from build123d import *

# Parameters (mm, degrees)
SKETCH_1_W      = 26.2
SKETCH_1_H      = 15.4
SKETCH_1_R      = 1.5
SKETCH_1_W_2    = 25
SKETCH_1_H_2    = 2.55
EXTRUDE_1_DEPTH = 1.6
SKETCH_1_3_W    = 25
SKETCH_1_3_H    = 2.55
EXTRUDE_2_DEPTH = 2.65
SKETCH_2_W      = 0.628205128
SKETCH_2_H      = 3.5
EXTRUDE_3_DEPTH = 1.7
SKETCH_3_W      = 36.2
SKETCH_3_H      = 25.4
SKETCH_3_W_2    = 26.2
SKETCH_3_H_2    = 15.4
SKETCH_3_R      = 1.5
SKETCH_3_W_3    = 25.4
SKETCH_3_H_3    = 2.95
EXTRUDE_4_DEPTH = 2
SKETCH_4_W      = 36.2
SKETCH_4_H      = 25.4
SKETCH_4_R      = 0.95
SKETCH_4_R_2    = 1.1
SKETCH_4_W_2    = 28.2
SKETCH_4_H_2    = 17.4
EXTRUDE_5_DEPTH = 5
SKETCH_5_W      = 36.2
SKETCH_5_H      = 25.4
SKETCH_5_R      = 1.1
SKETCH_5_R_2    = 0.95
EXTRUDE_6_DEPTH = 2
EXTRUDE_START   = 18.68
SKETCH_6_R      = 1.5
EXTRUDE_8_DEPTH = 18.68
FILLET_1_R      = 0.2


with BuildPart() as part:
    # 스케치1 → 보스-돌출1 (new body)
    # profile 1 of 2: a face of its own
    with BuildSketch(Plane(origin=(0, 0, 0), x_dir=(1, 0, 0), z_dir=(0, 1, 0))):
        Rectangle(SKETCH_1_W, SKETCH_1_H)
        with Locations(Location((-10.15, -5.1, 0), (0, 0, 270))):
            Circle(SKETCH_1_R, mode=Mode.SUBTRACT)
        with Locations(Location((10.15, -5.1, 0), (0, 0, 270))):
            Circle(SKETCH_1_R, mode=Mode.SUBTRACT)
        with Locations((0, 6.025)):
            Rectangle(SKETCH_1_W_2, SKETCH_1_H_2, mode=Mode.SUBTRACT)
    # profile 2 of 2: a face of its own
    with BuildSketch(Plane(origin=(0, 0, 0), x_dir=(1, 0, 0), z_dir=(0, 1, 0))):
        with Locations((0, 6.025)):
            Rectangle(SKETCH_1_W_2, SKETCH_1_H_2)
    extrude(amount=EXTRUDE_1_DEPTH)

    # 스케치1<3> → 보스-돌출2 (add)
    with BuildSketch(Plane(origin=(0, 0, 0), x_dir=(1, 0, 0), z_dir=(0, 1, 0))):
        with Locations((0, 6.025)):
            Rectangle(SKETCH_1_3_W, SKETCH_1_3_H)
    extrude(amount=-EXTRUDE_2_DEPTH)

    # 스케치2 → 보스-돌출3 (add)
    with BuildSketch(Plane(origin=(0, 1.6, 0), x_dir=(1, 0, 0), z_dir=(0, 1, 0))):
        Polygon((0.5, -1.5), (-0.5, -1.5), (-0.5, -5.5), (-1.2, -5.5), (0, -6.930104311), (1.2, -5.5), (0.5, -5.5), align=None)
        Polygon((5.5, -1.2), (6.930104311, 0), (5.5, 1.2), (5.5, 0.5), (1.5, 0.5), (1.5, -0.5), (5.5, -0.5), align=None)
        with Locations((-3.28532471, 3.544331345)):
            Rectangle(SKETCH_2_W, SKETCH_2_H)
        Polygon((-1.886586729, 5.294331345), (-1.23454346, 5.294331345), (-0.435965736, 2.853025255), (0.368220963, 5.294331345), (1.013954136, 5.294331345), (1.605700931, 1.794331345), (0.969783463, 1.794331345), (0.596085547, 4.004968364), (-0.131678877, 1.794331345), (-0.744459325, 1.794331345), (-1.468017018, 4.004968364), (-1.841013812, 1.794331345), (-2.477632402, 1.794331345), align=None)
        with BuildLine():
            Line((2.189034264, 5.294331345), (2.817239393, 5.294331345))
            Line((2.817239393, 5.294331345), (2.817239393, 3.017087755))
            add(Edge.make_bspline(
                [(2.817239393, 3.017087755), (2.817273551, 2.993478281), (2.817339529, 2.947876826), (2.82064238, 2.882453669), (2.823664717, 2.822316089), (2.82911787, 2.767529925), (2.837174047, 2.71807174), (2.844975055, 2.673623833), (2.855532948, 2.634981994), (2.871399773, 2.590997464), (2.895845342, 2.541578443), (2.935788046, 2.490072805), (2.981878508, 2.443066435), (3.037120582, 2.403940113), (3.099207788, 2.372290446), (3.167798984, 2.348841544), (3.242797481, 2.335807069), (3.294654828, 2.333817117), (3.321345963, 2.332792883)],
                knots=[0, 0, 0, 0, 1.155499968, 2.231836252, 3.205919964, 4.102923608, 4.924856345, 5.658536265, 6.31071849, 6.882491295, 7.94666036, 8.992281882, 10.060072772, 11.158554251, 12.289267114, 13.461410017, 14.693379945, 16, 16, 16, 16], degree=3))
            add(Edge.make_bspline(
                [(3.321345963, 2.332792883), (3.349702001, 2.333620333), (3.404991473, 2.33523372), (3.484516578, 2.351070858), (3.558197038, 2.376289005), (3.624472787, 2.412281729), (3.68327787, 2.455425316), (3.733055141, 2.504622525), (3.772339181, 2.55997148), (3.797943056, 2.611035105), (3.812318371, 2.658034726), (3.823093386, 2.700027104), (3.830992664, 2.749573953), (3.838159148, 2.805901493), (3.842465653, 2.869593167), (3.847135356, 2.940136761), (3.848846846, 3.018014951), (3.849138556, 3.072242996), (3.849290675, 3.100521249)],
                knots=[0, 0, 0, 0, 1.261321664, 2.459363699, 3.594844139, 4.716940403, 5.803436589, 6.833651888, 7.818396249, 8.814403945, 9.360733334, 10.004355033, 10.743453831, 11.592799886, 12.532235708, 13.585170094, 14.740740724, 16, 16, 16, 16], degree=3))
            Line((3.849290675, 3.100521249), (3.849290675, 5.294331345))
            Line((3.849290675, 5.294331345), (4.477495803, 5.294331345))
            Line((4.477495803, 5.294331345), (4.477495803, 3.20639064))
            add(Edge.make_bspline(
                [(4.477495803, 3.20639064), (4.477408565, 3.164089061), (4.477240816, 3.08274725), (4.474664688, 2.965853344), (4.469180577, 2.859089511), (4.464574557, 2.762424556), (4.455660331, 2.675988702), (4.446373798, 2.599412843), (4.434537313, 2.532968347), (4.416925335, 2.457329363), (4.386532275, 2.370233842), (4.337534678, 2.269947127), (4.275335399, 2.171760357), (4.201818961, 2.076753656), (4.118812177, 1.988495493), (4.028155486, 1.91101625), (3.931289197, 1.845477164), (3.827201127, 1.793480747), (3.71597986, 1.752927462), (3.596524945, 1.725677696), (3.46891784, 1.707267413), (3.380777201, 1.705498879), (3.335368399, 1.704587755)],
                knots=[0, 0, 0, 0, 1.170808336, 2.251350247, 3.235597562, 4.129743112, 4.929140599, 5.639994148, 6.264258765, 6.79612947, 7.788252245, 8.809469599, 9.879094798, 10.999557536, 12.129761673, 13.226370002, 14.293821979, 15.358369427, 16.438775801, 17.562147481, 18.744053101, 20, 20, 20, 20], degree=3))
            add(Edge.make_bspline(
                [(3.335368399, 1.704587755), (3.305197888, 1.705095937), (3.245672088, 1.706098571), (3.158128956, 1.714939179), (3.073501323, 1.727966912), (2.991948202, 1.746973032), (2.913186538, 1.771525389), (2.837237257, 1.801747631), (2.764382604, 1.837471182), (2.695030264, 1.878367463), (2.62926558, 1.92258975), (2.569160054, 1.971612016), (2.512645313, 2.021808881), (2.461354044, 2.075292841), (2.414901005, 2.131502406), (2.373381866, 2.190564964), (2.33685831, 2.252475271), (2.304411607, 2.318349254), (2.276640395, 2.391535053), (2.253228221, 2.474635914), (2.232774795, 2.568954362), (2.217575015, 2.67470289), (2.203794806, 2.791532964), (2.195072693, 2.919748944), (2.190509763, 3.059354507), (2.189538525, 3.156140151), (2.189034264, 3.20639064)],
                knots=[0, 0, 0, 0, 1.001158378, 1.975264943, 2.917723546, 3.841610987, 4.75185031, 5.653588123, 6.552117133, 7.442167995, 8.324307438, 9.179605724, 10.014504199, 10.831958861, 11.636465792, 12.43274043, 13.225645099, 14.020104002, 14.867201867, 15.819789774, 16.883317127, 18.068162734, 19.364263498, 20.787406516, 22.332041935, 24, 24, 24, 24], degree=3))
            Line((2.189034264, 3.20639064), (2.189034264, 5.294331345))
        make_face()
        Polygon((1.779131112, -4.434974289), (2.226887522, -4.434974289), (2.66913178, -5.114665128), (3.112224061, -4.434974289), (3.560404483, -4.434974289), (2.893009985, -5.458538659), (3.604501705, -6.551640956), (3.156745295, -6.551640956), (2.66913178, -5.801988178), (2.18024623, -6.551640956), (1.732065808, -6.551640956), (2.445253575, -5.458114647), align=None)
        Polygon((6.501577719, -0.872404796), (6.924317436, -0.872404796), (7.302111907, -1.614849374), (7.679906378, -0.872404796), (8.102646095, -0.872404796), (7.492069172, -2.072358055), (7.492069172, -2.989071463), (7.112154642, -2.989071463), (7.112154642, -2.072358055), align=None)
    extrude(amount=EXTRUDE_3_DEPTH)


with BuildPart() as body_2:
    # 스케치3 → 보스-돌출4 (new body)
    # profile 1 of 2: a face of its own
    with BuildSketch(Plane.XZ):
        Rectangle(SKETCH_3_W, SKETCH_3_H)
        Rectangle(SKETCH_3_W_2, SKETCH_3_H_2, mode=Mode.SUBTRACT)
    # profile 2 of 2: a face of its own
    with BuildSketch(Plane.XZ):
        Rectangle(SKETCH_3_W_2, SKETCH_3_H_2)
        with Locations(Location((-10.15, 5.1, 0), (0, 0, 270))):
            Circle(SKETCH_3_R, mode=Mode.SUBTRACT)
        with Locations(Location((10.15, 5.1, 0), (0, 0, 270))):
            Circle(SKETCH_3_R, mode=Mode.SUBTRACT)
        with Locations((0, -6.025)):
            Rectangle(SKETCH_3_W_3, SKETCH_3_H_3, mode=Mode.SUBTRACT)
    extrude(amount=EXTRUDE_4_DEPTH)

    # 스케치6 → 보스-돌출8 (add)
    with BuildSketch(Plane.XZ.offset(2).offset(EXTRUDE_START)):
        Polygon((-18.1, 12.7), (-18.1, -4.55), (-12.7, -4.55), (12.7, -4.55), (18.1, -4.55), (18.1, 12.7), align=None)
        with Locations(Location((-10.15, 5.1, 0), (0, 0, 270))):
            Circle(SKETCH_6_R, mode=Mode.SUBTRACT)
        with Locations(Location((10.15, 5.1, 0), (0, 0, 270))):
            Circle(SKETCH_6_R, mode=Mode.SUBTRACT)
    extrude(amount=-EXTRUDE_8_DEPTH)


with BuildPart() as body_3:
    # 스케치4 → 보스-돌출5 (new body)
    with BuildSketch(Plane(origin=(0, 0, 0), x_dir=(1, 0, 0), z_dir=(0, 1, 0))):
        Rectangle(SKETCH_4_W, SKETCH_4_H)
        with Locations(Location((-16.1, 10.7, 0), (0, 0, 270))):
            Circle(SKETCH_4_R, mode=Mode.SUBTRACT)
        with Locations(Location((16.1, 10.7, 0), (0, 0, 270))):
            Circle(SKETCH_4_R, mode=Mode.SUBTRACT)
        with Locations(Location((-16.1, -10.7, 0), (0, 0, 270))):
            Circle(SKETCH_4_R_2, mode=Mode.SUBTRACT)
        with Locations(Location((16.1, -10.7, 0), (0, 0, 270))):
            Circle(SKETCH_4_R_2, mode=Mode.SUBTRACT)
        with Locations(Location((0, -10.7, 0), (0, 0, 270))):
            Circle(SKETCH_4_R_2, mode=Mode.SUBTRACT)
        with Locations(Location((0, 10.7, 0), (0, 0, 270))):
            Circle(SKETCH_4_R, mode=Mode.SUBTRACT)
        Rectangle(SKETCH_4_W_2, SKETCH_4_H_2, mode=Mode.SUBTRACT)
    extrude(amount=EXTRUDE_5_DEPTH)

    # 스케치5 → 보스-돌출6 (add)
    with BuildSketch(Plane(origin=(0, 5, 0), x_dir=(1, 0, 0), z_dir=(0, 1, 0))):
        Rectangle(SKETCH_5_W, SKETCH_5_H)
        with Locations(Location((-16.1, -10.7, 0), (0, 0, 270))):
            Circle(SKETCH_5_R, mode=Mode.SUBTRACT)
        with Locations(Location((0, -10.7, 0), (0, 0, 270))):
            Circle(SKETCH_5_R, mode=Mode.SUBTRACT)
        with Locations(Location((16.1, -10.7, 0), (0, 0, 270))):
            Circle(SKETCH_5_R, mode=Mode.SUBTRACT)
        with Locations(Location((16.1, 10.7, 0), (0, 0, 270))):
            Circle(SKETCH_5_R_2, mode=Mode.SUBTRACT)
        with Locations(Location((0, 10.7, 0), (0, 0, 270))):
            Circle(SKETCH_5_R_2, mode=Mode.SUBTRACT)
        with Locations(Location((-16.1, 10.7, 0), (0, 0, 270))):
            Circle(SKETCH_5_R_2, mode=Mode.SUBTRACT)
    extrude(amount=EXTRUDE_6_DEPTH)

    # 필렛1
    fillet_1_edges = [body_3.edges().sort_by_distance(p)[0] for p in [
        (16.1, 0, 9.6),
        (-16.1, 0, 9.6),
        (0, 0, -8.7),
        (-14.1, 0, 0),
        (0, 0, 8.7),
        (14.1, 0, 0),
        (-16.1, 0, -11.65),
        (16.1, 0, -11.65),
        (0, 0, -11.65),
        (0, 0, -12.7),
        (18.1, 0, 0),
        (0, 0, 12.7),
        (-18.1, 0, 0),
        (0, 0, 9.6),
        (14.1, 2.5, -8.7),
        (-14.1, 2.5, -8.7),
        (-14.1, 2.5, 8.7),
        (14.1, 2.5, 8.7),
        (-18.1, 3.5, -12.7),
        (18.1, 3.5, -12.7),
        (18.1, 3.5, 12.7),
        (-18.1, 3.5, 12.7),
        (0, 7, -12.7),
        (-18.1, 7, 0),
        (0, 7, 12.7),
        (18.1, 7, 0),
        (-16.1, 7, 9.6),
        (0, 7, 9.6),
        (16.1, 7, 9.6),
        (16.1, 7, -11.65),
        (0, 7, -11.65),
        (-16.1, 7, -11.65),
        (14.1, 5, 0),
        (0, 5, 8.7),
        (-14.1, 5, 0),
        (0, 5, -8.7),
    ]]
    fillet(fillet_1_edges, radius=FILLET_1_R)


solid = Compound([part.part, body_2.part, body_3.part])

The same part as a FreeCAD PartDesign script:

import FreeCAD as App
import Part
import Sketcher
from FreeCAD import Vector
Q = App.Units.Quantity

doc = App.newDocument("Part")
body = doc.addObject("PartDesign::Body", "Body")

sketch1 = body.newObject("Sketcher::SketchObject", "Sketch")
sketch1.AttachmentSupport = (doc.getObject("XZ_Plane"), [""])
sketch1.MapMode = "FlatFace"
sketch1.addGeometry([
    Part.LineSegment(Vector(-13.1, -7.7, 0), Vector(-13.1, 7.7, 0)),
    Part.LineSegment(Vector(-13.1, 7.7, 0), Vector(13.1, 7.7, 0)),
    Part.LineSegment(Vector(13.1, 7.7, 0), Vector(13.1, -7.7, 0)),
    Part.LineSegment(Vector(13.1, -7.7, 0), Vector(-13.1, -7.7, 0)),
    Part.Circle(Vector(-10.15, 5.1, 0), Vector(0, 0, 1), 1.5),
    Part.Circle(Vector(10.15, 5.1, 0), Vector(0, 0, 1), 1.5),
], False)
sketch1.addConstraint([
    Sketcher.Constraint("Coincident", 0, 2, 1, 1),
    Sketcher.Constraint("Coincident", 1, 2, 2, 1),
    Sketcher.Constraint("Coincident", 2, 2, 3, 1),
    Sketcher.Constraint("Coincident", 3, 2, 0, 1),
    Sketcher.Constraint("Vertical", 0),
    Sketcher.Constraint("Horizontal", 1),
    Sketcher.Constraint("Vertical", 2),
    Sketcher.Constraint("Horizontal", 3),
    Sketcher.Constraint("Equal", 4, 5),
    Sketcher.Constraint("Symmetric", 0, 2, 2, 2, -1, 1),
    Sketcher.Constraint("Symmetric", 4, 3, 5, 3, -2),
    Sketcher.Constraint("Diameter", 4, Q("3 mm")),
    Sketcher.Constraint("DistanceX", 1, 1, 1, 2, Q("26.2 mm")),
    Sketcher.Constraint("DistanceY", 0, 1, 0, 2, Q("15.4 mm")),
    Sketcher.Constraint("DistanceY", -1, 1, 4, 3, Q("5.1 mm")),
    Sketcher.Constraint("DistanceX", 4, 3, 5, 3, Q("20.3 mm")),
])
pad1 = body.newObject("PartDesign::Pad", "Pad")
pad1.Profile = sketch1
pad1.Length = 1.6
pad1.Reversed = True

sketch2 = body.newObject("Sketcher::SketchObject", "Sketch001")
sketch2.AttachmentSupport = (doc.getObject("XZ_Plane"), [""])
sketch2.MapMode = "FlatFace"
sketch2.addGeometry([
    Part.LineSegment(Vector(-12.5, -7.3, 0), Vector(-12.5, -4.75, 0)),
    Part.LineSegment(Vector(-12.5, -4.75, 0), Vector(12.5, -4.75, 0)),
    Part.LineSegment(Vector(12.5, -4.75, 0), Vector(12.5, -7.3, 0)),
    Part.LineSegment(Vector(12.5, -7.3, 0), Vector(-12.5, -7.3, 0)),
], False)
sketch2.addConstraint([
    Sketcher.Constraint("Coincident", 0, 2, 1, 1),
    Sketcher.Constraint("Coincident", 1, 2, 2, 1),
    Sketcher.Constraint("Coincident", 2, 2, 3, 1),
    Sketcher.Constraint("Coincident", 3, 2, 0, 1),
    Sketcher.Constraint("Vertical", 0),
    Sketcher.Constraint("Horizontal", 1),
    Sketcher.Constraint("Vertical", 2),
    Sketcher.Constraint("Horizontal", 3),
    Sketcher.Constraint("DistanceX", 1, 1, 1, 2, Q("25 mm")),
    Sketcher.Constraint("DistanceY", 0, 1, 0, 2, Q("2.55 mm")),
    Sketcher.Constraint("DistanceX", 0, 2, -1, 1, Q("12.5 mm")),
    Sketcher.Constraint("DistanceY", 2, 2, -1, 1, Q("7.3 mm")),
])
pad2 = body.newObject("PartDesign::Pad", "Pad001")
pad2.Profile = sketch2
pad2.Length = 2.65

sketch3 = body.newObject("Sketcher::SketchObject", "Sketch002")
sketch3.AttachmentSupport = (doc.getObject("XZ_Plane"), [""])
sketch3.MapMode = "FlatFace"
sketch3.AttachmentOffset = App.Placement(Vector(0, 0, -1.6), App.Rotation())
sketch3.addGeometry([
    Part.LineSegment(Vector(0.5, 1.5, 0), Vector(-0.5, 1.5, 0)),
    Part.LineSegment(Vector(-0.5, 1.5, 0), Vector(-0.5, 5.5, 0)),
    Part.LineSegment(Vector(-0.5, 5.5, 0), Vector(-1.2, 5.5, 0)),
    Part.LineSegment(Vector(-1.2, 5.5, 0), Vector(0, 6.930104, 0)),
    Part.LineSegment(Vector(0, 6.930104, 0), Vector(1.2, 5.5, 0)),
    Part.LineSegment(Vector(1.2, 5.5, 0), Vector(0.5, 5.5, 0)),
    Part.LineSegment(Vector(0.5, 5.5, 0), Vector(0.5, 1.5, 0)),
    Part.LineSegment(Vector(5.5, 1.2, 0), Vector(6.930104, 0, 0)),
    Part.LineSegment(Vector(6.930104, 0, 0), Vector(5.5, -1.2, 0)),
    Part.LineSegment(Vector(5.5, -1.2, 0), Vector(5.5, -0.5, 0)),
    Part.LineSegment(Vector(5.5, -0.5, 0), Vector(1.5, -0.5, 0)),
    Part.LineSegment(Vector(1.5, -0.5, 0), Vector(1.5, 0.5, 0)),
    Part.LineSegment(Vector(1.5, 0.5, 0), Vector(5.5, 0.5, 0)),
    Part.LineSegment(Vector(5.5, 0.5, 0), Vector(5.5, 1.2, 0)),
    Part.LineSegment(Vector(-3.599427, -5.294331, 0), Vector(-3.599427, -1.794331, 0)),
    Part.LineSegment(Vector(-3.599427, -1.794331, 0), Vector(-2.971222, -1.794331, 0)),
    Part.LineSegment(Vector(-2.971222, -1.794331, 0), Vector(-2.971222, -5.294331, 0)),
    Part.LineSegment(Vector(-2.971222, -5.294331, 0), Vector(-3.599427, -5.294331, 0)),
    Part.LineSegment(Vector(-1.234543, -5.294331, 0), Vector(-1.886587, -5.294331, 0)),
    Part.LineSegment(Vector(-1.886587, -5.294331, 0), Vector(-2.477632, -1.794331, 0)),
    Part.LineSegment(Vector(-2.477632, -1.794331, 0), Vector(-1.841014, -1.794331, 0)),
    Part.LineSegment(Vector(-1.841014, -1.794331, 0), Vector(-1.468017, -4.004968, 0)),
    Part.LineSegment(Vector(-1.468017, -4.004968, 0), Vector(-0.744459, -1.794331, 0)),
    Part.LineSegment(Vector(-0.744459, -1.794331, 0), Vector(-0.131679, -1.794331, 0)),
    Part.LineSegment(Vector(-0.131679, -1.794331, 0), Vector(0.596086, -4.004968, 0)),
    Part.LineSegment(Vector(0.596086, -4.004968, 0), Vector(0.969783, -1.794331, 0)),
    Part.LineSegment(Vector(0.969783, -1.794331, 0), Vector(1.605701, -1.794331, 0)),
    Part.LineSegment(Vector(1.605701, -1.794331, 0), Vector(1.013954, -5.294331, 0)),
    Part.LineSegment(Vector(1.013954, -5.294331, 0), Vector(0.368221, -5.294331, 0)),
    Part.LineSegment(Vector(0.368221, -5.294331, 0), Vector(-0.435966, -2.853025, 0)),
    Part.LineSegment(Vector(-0.435966, -2.853025, 0), Vector(-1.234543, -5.294331, 0)),
    Part.LineSegment(Vector(2.817239, -5.294331, 0), Vector(2.189034, -5.294331, 0)),
    Part.LineSegment(Vector(2.189034, -5.294331, 0), Vector(2.189034, -3.206391, 0)),
    Part.BSplineCurve([Vector(3.335368, -1.704588, 0), Vector(3.305198, -1.705096, 0), Vector(3.245672, -1.706099, 0), Vector(3.158129, -1.714939, 0), Vector(3.073501, -1.727967, 0), Vector(2.991948, -1.746973, 0), Vector(2.913187, -1.771525, 0), Vector(2.837237, -1.801748, 0), Vector(2.764383, -1.837471, 0), Vector(2.69503, -1.878367, 0), Vector(2.629266, -1.92259, 0), Vector(2.56916, -1.971612, 0), Vector(2.512645, -2.021809, 0), Vector(2.461354, -2.075293, 0), Vector(2.414901, -2.131502, 0), Vector(2.373382, -2.190565, 0), Vector(2.336858, -2.252475, 0), Vector(2.304412, -2.318349, 0), Vector(2.27664, -2.391535, 0), Vector(2.253228, -2.474636, 0), Vector(2.232775, -2.568954, 0), Vector(2.217575, -2.674703, 0), Vector(2.203795, -2.791533, 0), Vector(2.195073, -2.919749, 0), Vector(2.19051, -3.059355, 0), Vector(2.189539, -3.15614, 0), Vector(2.189034, -3.206391, 0)], [4, 1, 1, 1, 1, 1, 1, 1, 1, 1, 1, 1, 1, 1, 1, 1, 1, 1, 1, 1, 1, 1, 1, 1, 4], [0, 1.001158378, 1.975264943, 2.917723546, 3.841610987, 4.75185031, 5.653588123, 6.552117133, 7.442167995, 8.324307438, 9.179605724, 10.014504199, 10.831958861, 11.636465792, 12.43274043, 13.225645099, 14.020104002, 14.867201867, 15.819789774, 16.883317127, 18.068162734, 19.364263498, 20.787406516, 22.332041935, 24], False, 3, [1, 1, 1, 1, 1, 1, 1, 1, 1, 1, 1, 1, 1, 1, 1, 1, 1, 1, 1, 1, 1, 1, 1, 1, 1, 1, 1], False),
    Part.BSplineCurve([Vector(4.477496, -3.206391, 0), Vector(4.477409, -3.164089, 0), Vector(4.477241, -3.082747, 0), Vector(4.474665, -2.965853, 0), Vector(4.469181, -2.85909, 0), Vector(4.464575, -2.762425, 0), Vector(4.45566, -2.675989, 0), Vector(4.446374, -2.599413, 0), Vector(4.434537, -2.532968, 0), Vector(4.416925, -2.457329, 0), Vector(4.386532, -2.370234, 0), Vector(4.337535, -2.269947, 0), Vector(4.275335, -2.17176, 0), Vector(4.201819, -2.076754, 0), Vector(4.118812, -1.988495, 0), Vector(4.028155, -1.911016, 0), Vector(3.931289, -1.845477, 0), Vector(3.827201, -1.793481, 0), Vector(3.71598, -1.752927, 0), Vector(3.596525, -1.725678, 0), Vector(3.468918, -1.707267, 0), Vector(3.380777, -1.705499, 0), Vector(3.335368, -1.704588, 0)], [4, 1, 1, 1, 1, 1, 1, 1, 1, 1, 1, 1, 1, 1, 1, 1, 1, 1, 1, 1, 4], [0, 1.170808336, 2.251350247, 3.235597562, 4.129743112, 4.929140599, 5.639994148, 6.264258765, 6.79612947, 7.788252245, 8.809469599, 9.879094798, 10.999557536, 12.129761673, 13.226370002, 14.293821979, 15.358369427, 16.438775801, 17.562147481, 18.744053101, 20], False, 3, [1, 1, 1, 1, 1, 1, 1, 1, 1, 1, 1, 1, 1, 1, 1, 1, 1, 1, 1, 1, 1, 1, 1], False),
    Part.LineSegment(Vector(4.477496, -3.206391, 0), Vector(4.477496, -5.294331, 0)),
    Part.LineSegment(Vector(4.477496, -5.294331, 0), Vector(3.849291, -5.294331, 0)),
    Part.LineSegment(Vector(3.849291, -5.294331, 0), Vector(3.849291, -3.100521, 0)),
    Part.BSplineCurve([Vector(3.321346, -2.332793, 0), Vector(3.349702, -2.33362, 0), Vector(3.404991, -2.335234, 0), Vector(3.484517, -2.351071, 0), Vector(3.558197, -2.376289, 0), Vector(3.624473, -2.412282, 0), Vector(3.683278, -2.455425, 0), Vector(3.733055, -2.504623, 0), Vector(3.772339, -2.559971, 0), Vector(3.797943, -2.611035, 0), Vector(3.812318, -2.658035, 0), Vector(3.823093, -2.700027, 0), Vector(3.830993, -2.749574, 0), Vector(3.838159, -2.805901, 0), Vector(3.842466, -2.869593, 0), Vector(3.847135, -2.940137, 0), Vector(3.848847, -3.018015, 0), Vector(3.849139, -3.072243, 0), Vector(3.849291, -3.100521, 0)], [4, 1, 1, 1, 1, 1, 1, 1, 1, 1, 1, 1, 1, 1, 1, 1, 4], [0, 1.261321664, 2.459363699, 3.594844139, 4.716940403, 5.803436589, 6.833651888, 7.818396249, 8.814403945, 9.360733334, 10.004355033, 10.743453831, 11.592799886, 12.532235708, 13.585170094, 14.740740724, 16], False, 3, [1, 1, 1, 1, 1, 1, 1, 1, 1, 1, 1, 1, 1, 1, 1, 1, 1, 1, 1], False),
    Part.BSplineCurve([Vector(2.817239, -3.017088, 0), Vector(2.817274, -2.993478, 0), Vector(2.81734, -2.947877, 0), Vector(2.820642, -2.882454, 0), Vector(2.823665, -2.822316, 0), Vector(2.829118, -2.76753, 0), Vector(2.837174, -2.718072, 0), Vector(2.844975, -2.673624, 0), Vector(2.855533, -2.634982, 0), Vector(2.8714, -2.590997, 0), Vector(2.895845, -2.541578, 0), Vector(2.935788, -2.490073, 0), Vector(2.981879, -2.443066, 0), Vector(3.037121, -2.40394, 0), Vector(3.099208, -2.37229, 0), Vector(3.167799, -2.348842, 0), Vector(3.242797, -2.335807, 0), Vector(3.294655, -2.333817, 0), Vector(3.321346, -2.332793, 0)], [4, 1, 1, 1, 1, 1, 1, 1, 1, 1, 1, 1, 1, 1, 1, 1, 4], [0, 1.155499968, 2.231836252, 3.205919964, 4.102923608, 4.924856345, 5.658536265, 6.31071849, 6.882491295, 7.94666036, 8.992281882, 10.060072772, 11.158554251, 12.289267114, 13.461410017, 14.693379945, 16], False, 3, [1, 1, 1, 1, 1, 1, 1, 1, 1, 1, 1, 1, 1, 1, 1, 1, 1, 1, 1], False),
    Part.LineSegment(Vector(2.817239, -3.017088, 0), Vector(2.817239, -5.294331, 0)),
    Part.LineSegment(Vector(2.226888, 4.434974, 0), Vector(1.779131, 4.434974, 0)),
    Part.LineSegment(Vector(1.779131, 4.434974, 0), Vector(2.445254, 5.458115, 0)),
    Part.LineSegment(Vector(2.445254, 5.458115, 0), Vector(1.732066, 6.551641, 0)),
    Part.LineSegment(Vector(1.732066, 6.551641, 0), Vector(2.180246, 6.551641, 0)),
    Part.LineSegment(Vector(2.180246, 6.551641, 0), Vector(2.669132, 5.801988, 0)),
    Part.LineSegment(Vector(2.669132, 5.801988, 0), Vector(3.156745, 6.551641, 0)),
    Part.LineSegment(Vector(3.156745, 6.551641, 0), Vector(3.604502, 6.551641, 0)),
    Part.LineSegment(Vector(3.604502, 6.551641, 0), Vector(2.89301, 5.458539, 0)),
    Part.LineSegment(Vector(2.89301, 5.458539, 0), Vector(3.560404, 4.434974, 0)),
    Part.LineSegment(Vector(3.560404, 4.434974, 0), Vector(3.112224, 4.434974, 0)),
    Part.LineSegment(Vector(3.112224, 4.434974, 0), Vector(2.669132, 5.114665, 0)),
    Part.LineSegment(Vector(2.669132, 5.114665, 0), Vector(2.226888, 4.434974, 0)),
    Part.LineSegment(Vector(6.924317, 0.872405, 0), Vector(6.501578, 0.872405, 0)),
    Part.LineSegment(Vector(6.501578, 0.872405, 0), Vector(7.112155, 2.072358, 0)),
    Part.LineSegment(Vector(7.112155, 2.072358, 0), Vector(7.112155, 2.989071, 0)),
    Part.LineSegment(Vector(7.112155, 2.989071, 0), Vector(7.492069, 2.989071, 0)),
    Part.LineSegment(Vector(7.492069, 2.989071, 0), Vector(7.492069, 2.072358, 0)),
    Part.LineSegment(Vector(7.492069, 2.072358, 0), Vector(8.102646, 0.872405, 0)),
    Part.LineSegment(Vector(8.102646, 0.872405, 0), Vector(7.679906, 0.872405, 0)),
    Part.LineSegment(Vector(7.679906, 0.872405, 0), Vector(7.302112, 1.614849, 0)),
    Part.LineSegment(Vector(7.302112, 1.614849, 0), Vector(6.924317, 0.872405, 0)),
], False)
sketch3.addConstraint([
    Sketcher.Constraint("Block", 33),
    Sketcher.Constraint("Block", 34),
    Sketcher.Constraint("Block", 38),
    Sketcher.Constraint("Block", 39),
    Sketcher.Constraint("Coincident", 0, 2, 1, 1),
    Sketcher.Constraint("Coincident", 1, 2, 2, 1),
    Sketcher.Constraint("Coincident", 2, 2, 3, 1),
    Sketcher.Constraint("Coincident", 3, 2, 4, 1),
    Sketcher.Constraint("Coincident", 4, 2, 5, 1),
    Sketcher.Constraint("Coincident", 5, 2, 6, 1),
    Sketcher.Constraint("Coincident", 6, 2, 0, 1),
    Sketcher.Constraint("Coincident", 7, 2, 8, 1),
    Sketcher.Constraint("Coincident", 8, 2, 9, 1),
    Sketcher.Constraint("Coincident", 9, 2, 10, 1),
    Sketcher.Constraint("Coincident", 10, 2, 11, 1),
    Sketcher.Constraint("Coincident", 11, 2, 12, 1),
    Sketcher.Constraint("Coincident", 12, 2, 13, 1),
    Sketcher.Constraint("Coincident", 13, 2, 7, 1),
    Sketcher.Constraint("Coincident", 14, 2, 15, 1),
    Sketcher.Constraint("Coincident", 15, 2, 16, 1),
    Sketcher.Constraint("Coincident", 16, 2, 17, 1),
    Sketcher.Constraint("Coincident", 17, 2, 14, 1),
    Sketcher.Constraint("Coincident", 18, 2, 19, 1),
    Sketcher.Constraint("Coincident", 19, 2, 20, 1),
    Sketcher.Constraint("Coincident", 20, 2, 21, 1),
    Sketcher.Constraint("Coincident", 21, 2, 22, 1),
    Sketcher.Constraint("Coincident", 22, 2, 23, 1),
    Sketcher.Constraint("Coincident", 23, 2, 24, 1),
    Sketcher.Constraint("Coincident", 24, 2, 25, 1),
    Sketcher.Constraint("Coincident", 25, 2, 26, 1),
    Sketcher.Constraint("Coincident", 26, 2, 27, 1),
    Sketcher.Constraint("Coincident", 27, 2, 28, 1),
    Sketcher.Constraint("Coincident", 28, 2, 29, 1),
    Sketcher.Constraint("Coincident", 29, 2, 30, 1),
    Sketcher.Constraint("Coincident", 30, 2, 18, 1),
    Sketcher.Constraint("Coincident", 31, 2, 32, 1),
    Sketcher.Constraint("Coincident", 32, 2, 33, 2),
    Sketcher.Constraint("Coincident", 34, 1, 35, 1),
    Sketcher.Constraint("Coincident", 35, 2, 36, 1),
    Sketcher.Constraint("Coincident", 36, 2, 37, 1),
    Sketcher.Constraint("Coincident", 37, 2, 38, 2),
    Sketcher.Constraint("Coincident", 39, 1, 40, 1),
    Sketcher.Constraint("Coincident", 40, 2, 31, 1),
    Sketcher.Constraint("Coincident", 41, 2, 42, 1),
    Sketcher.Constraint("Coincident", 42, 2, 43, 1),
    Sketcher.Constraint("Coincident", 43, 2, 44, 1),
    Sketcher.Constraint("Coincident", 44, 2, 45, 1),
    Sketcher.Constraint("Coincident", 45, 2, 46, 1),
    Sketcher.Constraint("Coincident", 46, 2, 47, 1),
    Sketcher.Constraint("Coincident", 47, 2, 48, 1),
    Sketcher.Constraint("Coincident", 48, 2, 49, 1),
    Sketcher.Constraint("Coincident", 49, 2, 50, 1),
    Sketcher.Constraint("Coincident", 50, 2, 51, 1),
    Sketcher.Constraint("Coincident", 51, 2, 52, 1),
    Sketcher.Constraint("Coincident", 52, 2, 41, 1),
    Sketcher.Constraint("Coincident", 53, 2, 54, 1),
    Sketcher.Constraint("Coincident", 54, 2, 55, 1),
    Sketcher.Constraint("Coincident", 55, 2, 56, 1),
    Sketcher.Constraint("Coincident", 56, 2, 57, 1),
    Sketcher.Constraint("Coincident", 57, 2, 58, 1),
    Sketcher.Constraint("Coincident", 58, 2, 59, 1),
    Sketcher.Constraint("Coincident", 59, 2, 60, 1),
    Sketcher.Constraint("Coincident", 60, 2, 61, 1),
    Sketcher.Constraint("Coincident", 61, 2, 53, 1),
    Sketcher.Constraint("Horizontal", 0),
    Sketcher.Constraint("Vertical", 1),
    Sketcher.Constraint("Horizontal", 2),
    Sketcher.Constraint("Horizontal", 5),
    Sketcher.Constraint("Vertical", 6),
    Sketcher.Constraint("Vertical", 9),
    Sketcher.Constraint("Horizontal", 10),
    Sketcher.Constraint("Vertical", 11),
    Sketcher.Constraint("Horizontal", 12),
    Sketcher.Constraint("Vertical", 13),
    Sketcher.Constraint("Vertical", 14),
    Sketcher.Constraint("Horizontal", 15),
    Sketcher.Constraint("Vertical", 16),
    Sketcher.Constraint("Horizontal", 17),
    Sketcher.Constraint("Horizontal", 18),
    Sketcher.Constraint("Horizontal", 20),
    Sketcher.Constraint("Horizontal", 23),
    Sketcher.Constraint("Horizontal", 26),
    Sketcher.Constraint("Horizontal", 28),
    Sketcher.Constraint("Horizontal", 31),
    Sketcher.Constraint("Vertical", 32),
    Sketcher.Constraint("Vertical", 35),
    Sketcher.Constraint("Horizontal", 36),
    Sketcher.Constraint("Vertical", 37),
    Sketcher.Constraint("Vertical", 40),
    Sketcher.Constraint("Horizontal", 41),
    Sketcher.Constraint("Horizontal", 44),
    Sketcher.Constraint("Horizontal", 47),
    Sketcher.Constraint("Horizontal", 50),
    Sketcher.Constraint("Horizontal", 53),
    Sketcher.Constraint("Vertical", 55),
    Sketcher.Constraint("Horizontal", 56),
    Sketcher.Constraint("Vertical", 57),
    Sketcher.Constraint("Horizontal", 59),
    Sketcher.Constraint("Symmetric", 2, 2, 4, 2, -2),
    Sketcher.Constraint("Symmetric", 9, 2, 12, 2, -1),
    Sketcher.Constraint("PointOnObject", 3, 2, -2),
    Sketcher.Constraint("PointOnObject", 7, 2, -1),
    Sketcher.Constraint("Perpendicular", 3, 7),
    Sketcher.Constraint("Perpendicular", 4, 8),
    Sketcher.Constraint("Horizontal", 17, 2, 18, 2),
    Sketcher.Constraint("Horizontal", 15, 2, 19, 2),
    Sketcher.Constraint("Horizontal", 20, 2, 22, 2),
    Sketcher.Constraint("Horizontal", 21, 2, 24, 2),
    Sketcher.Constraint("Horizontal", 23, 2, 25, 2),
    Sketcher.Constraint("Horizontal", 18, 2, 27, 2),
    Sketcher.Constraint("Horizontal", 30, 2, 31, 2),
    Sketcher.Constraint("Horizontal", 31, 2, 35, 2),
    Sketcher.Constraint("Horizontal", 44, 2, 46, 2),
    Sketcher.Constraint("Horizontal", 41, 2, 49, 2),
    Sketcher.Constraint("Horizontal", 54, 2, 57, 2),
    Sketcher.Constraint("Horizontal", 53, 2, 58, 2),
    Sketcher.Constraint("Vertical", 45, 2, 51, 2),
    Sketcher.Constraint("Equal", 2, 5),
    Sketcher.Constraint("Equal", 17, 31),
    Sketcher.Constraint("Equal", 41, 47),
    Sketcher.Constraint("Equal", 44, 50),
    Sketcher.Constraint("Equal", 53, 59),
    Sketcher.Constraint("Equal", 12, 1),
    Sketcher.Constraint("Equal", 5, 9),
    Sketcher.Constraint("Equal", 0, 11),
    Sketcher.Constraint("Equal", 54, 58),
    Sketcher.Constraint("Equal", 60, 61),
    Sketcher.Constraint("DistanceX", 0, 2, 0, 1, Q("1 mm")),
    Sketcher.Constraint("DistanceX", 10, 2, 10, 1, Q("4 mm")),
    Sketcher.Constraint("Angle", 3, Q("50 deg")),
    Sketcher.Constraint("DistanceX", 2, 2, 2, 1, Q("0.7 mm")),
    Sketcher.Constraint("DistanceY", 14, 1, 14, 2, Q("3.5 mm")),
    Sketcher.Constraint("DistanceX", 6, 2, 8, 2, Q("5 mm")),
    Sketcher.Constraint("DistanceY", 9, 2, 6, 2, Q("2 mm")),
    Sketcher.Constraint("DistanceX", 41, 2, 45, 2, Q("0.890001 mm")),
    Sketcher.Constraint("Distance", 25, Q("2.242 mm")),
    Sketcher.Constraint("Distance", 30, Q("2.568599 mm")),
    Sketcher.Constraint("Distance", 52, Q("0.8109 mm")),
    Sketcher.Constraint("DistanceX", 20, 1, 20, 2, Q("0.636619 mm")),
    Sketcher.Constraint("DistanceX", 23, 1, 23, 2, Q("0.61278 mm")),
    Sketcher.Constraint("DistanceX", 44, 1, 44, 2, Q("0.44818 mm")),
    Sketcher.Constraint("DistanceX", 53, 2, 53, 1, Q("0.42274 mm")),
    Sketcher.Constraint("DistanceY", 32, 1, 32, 2, Q("2.087941 mm")),
    Sketcher.Constraint("DistanceX", -1, 1, 26, 2, Q("1.605701 mm")),
    Sketcher.Constraint("DistanceX", -1, 1, 47, 2, Q("3.604502 mm")),
    Sketcher.Constraint("DistanceX", 20, 2, 24, 2, Q("2.437099 mm")),
    Sketcher.Constraint("DistanceX", 44, 2, 46, 2, Q("0.976499 mm")),
    Sketcher.Constraint("Distance", 24, Q("2.32735 mm")),
    Sketcher.Constraint("Distance", 27, Q("3.549671 mm")),
    Sketcher.Constraint("Distance", 29, Q("2.570349 mm")),
    Sketcher.Constraint("Distance", 43, Q("1.305541 mm")),
    Sketcher.Constraint("Distance", 45, Q("0.89498 mm")),
    Sketcher.Constraint("Distance", 48, Q("1.30426 mm")),
    Sketcher.Constraint("Distance", 60, Q("0.833038 mm")),
    Sketcher.Constraint("DistanceX", 18, 2, 18, 1, Q("0.652043 mm")),
    Sketcher.Constraint("DistanceX", 26, 1, 26, 2, Q("0.635917 mm")),
    Sketcher.Constraint("DistanceX", 28, 2, 28, 1, Q("0.645733 mm")),
    Sketcher.Constraint("DistanceX", 41, 2, 41, 1, Q("0.447756 mm")),
    Sketcher.Constraint("DistanceX", 56, 1, 56, 2, Q("0.379915 mm")),
    Sketcher.Constraint("DistanceY", 55, 1, 55, 2, Q("0.916713 mm")),
    Sketcher.Constraint("DistanceY", 21, 2, -1, 1, Q("4.004968 mm")),
    Sketcher.Constraint("DistanceX", -1, 1, 41, 2, Q("1.779131 mm")),
    Sketcher.Constraint("DistanceY", -1, 1, 43, 2, Q("6.551641 mm")),
    Sketcher.Constraint("DistanceX", -1, 1, 48, 2, Q("2.89301 mm")),
    Sketcher.Constraint("DistanceY", -1, 1, 54, 2, Q("2.072358 mm")),
    Sketcher.Constraint("DistanceX", -1, 1, 56, 2, Q("7.492069 mm")),
    Sketcher.Constraint("DistanceY", -1, 1, 60, 2, Q("1.614849 mm")),
    Sketcher.Constraint("DistanceX", 17, 2, 18, 2, Q("1.712841 mm")),
    Sketcher.Constraint("DistanceX", 15, 2, 19, 2, Q("0.49359 mm")),
    Sketcher.Constraint("DistanceX", 18, 2, 21, 2, Q("0.41857 mm")),
    Sketcher.Constraint("DistanceY", 41, 2, 3, 2, Q("2.49513 mm")),
    Sketcher.Constraint("DistanceY", 41, 2, 42, 2, Q("1.02314 mm")),
    Sketcher.Constraint("DistanceX", 42, 2, 49, 2, Q("1.115151 mm")),
    Sketcher.Constraint("DistanceX", 53, 2, 56, 2, Q("0.990491 mm")),
])
pad3 = body.newObject("PartDesign::Pad", "Pad002")
pad3.Profile = sketch3
pad3.Length = 1.7
pad3.Reversed = True
body2 = doc.addObject("PartDesign::Body", "Body001")

sketch4 = body2.newObject("Sketcher::SketchObject", "Sketch003")
sketch4.AttachmentSupport = (doc.getObject("XZ_Plane001"), [""])
sketch4.MapMode = "FlatFace"
sketch4.addGeometry([
    Part.LineSegment(Vector(-18.1, 12.7, 0), Vector(-18.1, -12.7, 0)),
    Part.LineSegment(Vector(-18.1, -12.7, 0), Vector(18.1, -12.7, 0)),
    Part.LineSegment(Vector(18.1, -12.7, 0), Vector(18.1, 12.7, 0)),
    Part.LineSegment(Vector(18.1, 12.7, 0), Vector(-18.1, 12.7, 0)),
    Part.LineSegment(Vector(-12.7, -4.55, 0), Vector(12.7, -4.55, 0)),
    Part.LineSegment(Vector(12.7, -4.55, 0), Vector(12.7, -7.5, 0)),
    Part.LineSegment(Vector(12.7, -7.5, 0), Vector(-12.7, -7.5, 0)),
    Part.LineSegment(Vector(-12.7, -7.5, 0), Vector(-12.7, -4.55, 0)),
    Part.Circle(Vector(10.15, 5.1, 0), Vector(0, 0, 1), 1.5),
    Part.Circle(Vector(-10.15, 5.1, 0), Vector(0, 0, 1), 1.5),
], False)
sketch4.addConstraint([
    Sketcher.Constraint("Coincident", 0, 2, 1, 1),
    Sketcher.Constraint("Coincident", 1, 2, 2, 1),
    Sketcher.Constraint("Coincident", 2, 2, 3, 1),
    Sketcher.Constraint("Coincident", 3, 2, 0, 1),
    Sketcher.Constraint("Coincident", 4, 2, 5, 1),
    Sketcher.Constraint("Coincident", 5, 2, 6, 1),
    Sketcher.Constraint("Coincident", 6, 2, 7, 1),
    Sketcher.Constraint("Coincident", 7, 2, 4, 1),
    Sketcher.Constraint("Vertical", 0),
    Sketcher.Constraint("Horizontal", 1),
    Sketcher.Constraint("Vertical", 2),
    Sketcher.Constraint("Horizontal", 3),
    Sketcher.Constraint("Horizontal", 4),
    Sketcher.Constraint("Vertical", 5),
    Sketcher.Constraint("Horizontal", 6),
    Sketcher.Constraint("Vertical", 7),
    Sketcher.Constraint("Equal", 8, 9),
    Sketcher.Constraint("Symmetric", 0, 2, 2, 2, -1, 1),
    Sketcher.Constraint("Symmetric", 8, 3, 9, 3, -2),
    Sketcher.Constraint("Equal", 6, 0),
    Sketcher.Constraint("Diameter", 8, Q("3 mm")),
    Sketcher.Constraint("DistanceX", 1, 1, 1, 2, Q("36.2 mm")),
    Sketcher.Constraint("DistanceX", 4, 1, 4, 2, Q("25.4 mm")),
    Sketcher.Constraint("DistanceY", 5, 2, 5, 1, Q("2.95 mm")),
    Sketcher.Constraint("DistanceY", -1, 1, 8, 3, Q("5.1 mm")),
    Sketcher.Constraint("DistanceX", -1, 1, 4, 2, Q("12.7 mm")),
    Sketcher.Constraint("DistanceY", 5, 2, -1, 1, Q("7.5 mm")),
    Sketcher.Constraint("DistanceX", 9, 3, 8, 3, Q("20.3 mm")),
])
pad4 = body2.newObject("PartDesign::Pad", "Pad003")
pad4.Profile = sketch4
pad4.Length = 2

sketch5 = body2.newObject("Sketcher::SketchObject", "Sketch004")
sketch5.AttachmentSupport = (doc.getObject("XZ_Plane001"), [""])
sketch5.MapMode = "FlatFace"
sketch5.AttachmentOffset = App.Placement(Vector(0, 0, 20.68), App.Rotation())
sketch5.addGeometry([
    Part.LineSegment(Vector(-18.1, 12.7, 0), Vector(-18.1, -4.55, 0)),
    Part.LineSegment(Vector(-18.1, -4.55, 0), Vector(18.1, -4.55, 0)),
    Part.LineSegment(Vector(18.1, -4.55, 0), Vector(18.1, 12.7, 0)),
    Part.LineSegment(Vector(18.1, 12.7, 0), Vector(-18.1, 12.7, 0)),
    Part.Circle(Vector(-10.15, 5.1, 0), Vector(0, 0, 1), 1.5),
    Part.Circle(Vector(10.15, 5.1, 0), Vector(0, 0, 1), 1.5),
], False)
sketch5.addConstraint([
    Sketcher.Constraint("Coincident", 0, 2, 1, 1),
    Sketcher.Constraint("Coincident", 1, 2, 2, 1),
    Sketcher.Constraint("Coincident", 2, 2, 3, 1),
    Sketcher.Constraint("Coincident", 3, 2, 0, 1),
    Sketcher.Constraint("Vertical", 0),
    Sketcher.Constraint("Horizontal", 1),
    Sketcher.Constraint("Vertical", 2),
    Sketcher.Constraint("Horizontal", 3),
    Sketcher.Constraint("Equal", 4, 5),
    Sketcher.Constraint("Symmetric", 4, 3, 5, 3, -2),
    Sketcher.Constraint("Diameter", 4, Q("3 mm")),
    Sketcher.Constraint("DistanceX", 1, 1, 1, 2, Q("36.2 mm")),
    Sketcher.Constraint("DistanceY", 0, 2, 0, 1, Q("17.25 mm")),
    Sketcher.Constraint("DistanceY", -1, 1, 4, 3, Q("5.1 mm")),
    Sketcher.Constraint("DistanceX", 0, 2, -1, 1, Q("18.1 mm")),
    Sketcher.Constraint("DistanceY", -1, 1, 2, 2, Q("12.7 mm")),
    Sketcher.Constraint("DistanceX", 4, 3, 5, 3, Q("20.3 mm")),
])
pad5 = body2.newObject("PartDesign::Pad", "Pad004")
pad5.Profile = sketch5
pad5.Length = 18.68
pad5.Reversed = True
body3 = doc.addObject("PartDesign::Body", "Body002")

sketch6 = body3.newObject("Sketcher::SketchObject", "Sketch005")
sketch6.AttachmentSupport = (doc.getObject("XZ_Plane002"), [""])
sketch6.MapMode = "FlatFace"
sketch6.addGeometry([
    Part.LineSegment(Vector(-18.1, -12.7, 0), Vector(-18.1, 12.7, 0)),
    Part.LineSegment(Vector(-18.1, 12.7, 0), Vector(18.1, 12.7, 0)),
    Part.LineSegment(Vector(18.1, 12.7, 0), Vector(18.1, -12.7, 0)),
    Part.LineSegment(Vector(18.1, -12.7, 0), Vector(-18.1, -12.7, 0)),
    Part.Circle(Vector(-16.1, 10.7, 0), Vector(0, 0, 1), 1.1),
    Part.Circle(Vector(0, 10.7, 0), Vector(0, 0, 1), 1.1),
    Part.Circle(Vector(16.1, 10.7, 0), Vector(0, 0, 1), 1.1),
    Part.Circle(Vector(-16.1, -10.7, 0), Vector(0, 0, 1), 0.95),
    Part.LineSegment(Vector(14.1, 8.7, 0), Vector(-14.1, 8.7, 0)),
    Part.LineSegment(Vector(-14.1, 8.7, 0), Vector(-14.1, -8.7, 0)),
    Part.LineSegment(Vector(-14.1, -8.7, 0), Vector(14.1, -8.7, 0)),
    Part.LineSegment(Vector(14.1, -8.7, 0), Vector(14.1, 8.7, 0)),
    Part.Circle(Vector(0, -10.7, 0), Vector(0, 0, 1), 0.95),
    Part.Circle(Vector(16.1, -10.7, 0), Vector(0, 0, 1), 0.95),
], False)
sketch6.addConstraint([
    Sketcher.Constraint("Coincident", 0, 2, 1, 1),
    Sketcher.Constraint("Coincident", 1, 2, 2, 1),
    Sketcher.Constraint("Coincident", 2, 2, 3, 1),
    Sketcher.Constraint("Coincident", 3, 2, 0, 1),
    Sketcher.Constraint("Coincident", 8, 2, 9, 1),
    Sketcher.Constraint("Coincident", 9, 2, 10, 1),
    Sketcher.Constraint("Coincident", 10, 2, 11, 1),
    Sketcher.Constraint("Coincident", 11, 2, 8, 1),
    Sketcher.Constraint("Vertical", 0),
    Sketcher.Constraint("Horizontal", 1),
    Sketcher.Constraint("Vertical", 2),
    Sketcher.Constraint("Horizontal", 3),
    Sketcher.Constraint("Horizontal", 8),
    Sketcher.Constraint("Vertical", 9),
    Sketcher.Constraint("Horizontal", 10),
    Sketcher.Constraint("Vertical", 11),
    Sketcher.Constraint("Equal", 4, 5),
    Sketcher.Constraint("Equal", 5, 6),
    Sketcher.Constraint("Equal", 7, 12),
    Sketcher.Constraint("Equal", 12, 13),
    Sketcher.Constraint("Symmetric", 6, 3, 7, 3, -1, 1),
    Sketcher.Constraint("Symmetric", 5, 3, 12, 3, -1, 1),
    Sketcher.Constraint("Symmetric", 4, 3, 13, 3, -1, 1),
    Sketcher.Constraint("Symmetric", 0, 2, 2, 2, -1, 1),
    Sketcher.Constraint("Symmetric", 8, 2, 10, 2, -1, 1),
    Sketcher.Constraint("Symmetric", 4, 3, 6, 3, -2),
    Sketcher.Constraint("PointOnObject", 5, 3, -2),
    Sketcher.Constraint("Horizontal", 4, 3, 5, 3),
    Sketcher.Constraint("Diameter", 4, Q("2.2 mm")),
    Sketcher.Constraint("Diameter", 7, Q("1.9 mm")),
    Sketcher.Constraint("DistanceX", 1, 1, 1, 2, Q("36.2 mm")),
    Sketcher.Constraint("DistanceX", 8, 2, 8, 1, Q("28.2 mm")),
    Sketcher.Constraint("DistanceY", 0, 1, 0, 2, Q("25.4 mm")),
    Sketcher.Constraint("DistanceY", 9, 2, 9, 1, Q("17.4 mm")),
    Sketcher.Constraint("DistanceX", 0, 2, 4, 3, Q("2 mm")),
    Sketcher.Constraint("DistanceY", 4, 3, 0, 2, Q("2 mm")),
])
pad6 = body3.newObject("PartDesign::Pad", "Pad005")
pad6.Profile = sketch6
pad6.Length = 5
pad6.Reversed = True

sketch7 = body3.newObject("Sketcher::SketchObject", "Sketch006")
sketch7.AttachmentSupport = (doc.getObject("XZ_Plane002"), [""])
sketch7.MapMode = "FlatFace"
sketch7.AttachmentOffset = App.Placement(Vector(0, 0, -5), App.Rotation())
sketch7.addGeometry([
    Part.LineSegment(Vector(-18.1, -12.7, 0), Vector(-18.1, 12.7, 0)),
    Part.LineSegment(Vector(-18.1, 12.7, 0), Vector(18.1, 12.7, 0)),
    Part.LineSegment(Vector(18.1, 12.7, 0), Vector(18.1, -12.7, 0)),
    Part.LineSegment(Vector(18.1, -12.7, 0), Vector(-18.1, -12.7, 0)),
    Part.Circle(Vector(-16.1, 10.7, 0), Vector(0, 0, 1), 1.1),
    Part.Circle(Vector(0, 10.7, 0), Vector(0, 0, 1), 1.1),
    Part.Circle(Vector(16.1, 10.7, 0), Vector(0, 0, 1), 1.1),
    Part.Circle(Vector(-16.1, -10.7, 0), Vector(0, 0, 1), 0.95),
    Part.Circle(Vector(0, -10.7, 0), Vector(0, 0, 1), 0.95),
    Part.Circle(Vector(16.1, -10.7, 0), Vector(0, 0, 1), 0.95),
], False)
sketch7.addConstraint([
    Sketcher.Constraint("Coincident", 0, 2, 1, 1),
    Sketcher.Constraint("Coincident", 1, 2, 2, 1),
    Sketcher.Constraint("Coincident", 2, 2, 3, 1),
    Sketcher.Constraint("Coincident", 3, 2, 0, 1),
    Sketcher.Constraint("Vertical", 0),
    Sketcher.Constraint("Horizontal", 1),
    Sketcher.Constraint("Vertical", 2),
    Sketcher.Constraint("Horizontal", 3),
    Sketcher.Constraint("Equal", 4, 5),
    Sketcher.Constraint("Equal", 5, 6),
    Sketcher.Constraint("Equal", 7, 8),
    Sketcher.Constraint("Equal", 8, 9),
    Sketcher.Constraint("Symmetric", 6, 3, 7, 3, -1, 1),
    Sketcher.Constraint("Symmetric", 5, 3, 8, 3, -1, 1),
    Sketcher.Constraint("Symmetric", 4, 3, 9, 3, -1, 1),
    Sketcher.Constraint("Symmetric", 0, 2, 2, 2, -1, 1),
    Sketcher.Constraint("Symmetric", 4, 3, 6, 3, -2),
    Sketcher.Constraint("PointOnObject", 5, 3, -2),
    Sketcher.Constraint("Horizontal", 4, 3, 5, 3),
    Sketcher.Constraint("Diameter", 4, Q("2.2 mm")),
    Sketcher.Constraint("Diameter", 7, Q("1.9 mm")),
    Sketcher.Constraint("DistanceX", 1, 1, 1, 2, Q("36.2 mm")),
    Sketcher.Constraint("DistanceY", 0, 1, 0, 2, Q("25.4 mm")),
    Sketcher.Constraint("DistanceX", 0, 2, 4, 3, Q("2 mm")),
    Sketcher.Constraint("DistanceY", 4, 3, 0, 2, Q("2 mm")),
])
pad7 = body3.newObject("PartDesign::Pad", "Pad006")
pad7.Profile = sketch7
pad7.Length = 2
pad7.Reversed = True
doc.recompute()

fillet = body3.newObject("PartDesign::Fillet", "Fillet")
fillet.Base = (pad7, ["Edge1"])
fillet.UseAllEdges = True
fillet.Radius = 0.2

doc.recompute()
